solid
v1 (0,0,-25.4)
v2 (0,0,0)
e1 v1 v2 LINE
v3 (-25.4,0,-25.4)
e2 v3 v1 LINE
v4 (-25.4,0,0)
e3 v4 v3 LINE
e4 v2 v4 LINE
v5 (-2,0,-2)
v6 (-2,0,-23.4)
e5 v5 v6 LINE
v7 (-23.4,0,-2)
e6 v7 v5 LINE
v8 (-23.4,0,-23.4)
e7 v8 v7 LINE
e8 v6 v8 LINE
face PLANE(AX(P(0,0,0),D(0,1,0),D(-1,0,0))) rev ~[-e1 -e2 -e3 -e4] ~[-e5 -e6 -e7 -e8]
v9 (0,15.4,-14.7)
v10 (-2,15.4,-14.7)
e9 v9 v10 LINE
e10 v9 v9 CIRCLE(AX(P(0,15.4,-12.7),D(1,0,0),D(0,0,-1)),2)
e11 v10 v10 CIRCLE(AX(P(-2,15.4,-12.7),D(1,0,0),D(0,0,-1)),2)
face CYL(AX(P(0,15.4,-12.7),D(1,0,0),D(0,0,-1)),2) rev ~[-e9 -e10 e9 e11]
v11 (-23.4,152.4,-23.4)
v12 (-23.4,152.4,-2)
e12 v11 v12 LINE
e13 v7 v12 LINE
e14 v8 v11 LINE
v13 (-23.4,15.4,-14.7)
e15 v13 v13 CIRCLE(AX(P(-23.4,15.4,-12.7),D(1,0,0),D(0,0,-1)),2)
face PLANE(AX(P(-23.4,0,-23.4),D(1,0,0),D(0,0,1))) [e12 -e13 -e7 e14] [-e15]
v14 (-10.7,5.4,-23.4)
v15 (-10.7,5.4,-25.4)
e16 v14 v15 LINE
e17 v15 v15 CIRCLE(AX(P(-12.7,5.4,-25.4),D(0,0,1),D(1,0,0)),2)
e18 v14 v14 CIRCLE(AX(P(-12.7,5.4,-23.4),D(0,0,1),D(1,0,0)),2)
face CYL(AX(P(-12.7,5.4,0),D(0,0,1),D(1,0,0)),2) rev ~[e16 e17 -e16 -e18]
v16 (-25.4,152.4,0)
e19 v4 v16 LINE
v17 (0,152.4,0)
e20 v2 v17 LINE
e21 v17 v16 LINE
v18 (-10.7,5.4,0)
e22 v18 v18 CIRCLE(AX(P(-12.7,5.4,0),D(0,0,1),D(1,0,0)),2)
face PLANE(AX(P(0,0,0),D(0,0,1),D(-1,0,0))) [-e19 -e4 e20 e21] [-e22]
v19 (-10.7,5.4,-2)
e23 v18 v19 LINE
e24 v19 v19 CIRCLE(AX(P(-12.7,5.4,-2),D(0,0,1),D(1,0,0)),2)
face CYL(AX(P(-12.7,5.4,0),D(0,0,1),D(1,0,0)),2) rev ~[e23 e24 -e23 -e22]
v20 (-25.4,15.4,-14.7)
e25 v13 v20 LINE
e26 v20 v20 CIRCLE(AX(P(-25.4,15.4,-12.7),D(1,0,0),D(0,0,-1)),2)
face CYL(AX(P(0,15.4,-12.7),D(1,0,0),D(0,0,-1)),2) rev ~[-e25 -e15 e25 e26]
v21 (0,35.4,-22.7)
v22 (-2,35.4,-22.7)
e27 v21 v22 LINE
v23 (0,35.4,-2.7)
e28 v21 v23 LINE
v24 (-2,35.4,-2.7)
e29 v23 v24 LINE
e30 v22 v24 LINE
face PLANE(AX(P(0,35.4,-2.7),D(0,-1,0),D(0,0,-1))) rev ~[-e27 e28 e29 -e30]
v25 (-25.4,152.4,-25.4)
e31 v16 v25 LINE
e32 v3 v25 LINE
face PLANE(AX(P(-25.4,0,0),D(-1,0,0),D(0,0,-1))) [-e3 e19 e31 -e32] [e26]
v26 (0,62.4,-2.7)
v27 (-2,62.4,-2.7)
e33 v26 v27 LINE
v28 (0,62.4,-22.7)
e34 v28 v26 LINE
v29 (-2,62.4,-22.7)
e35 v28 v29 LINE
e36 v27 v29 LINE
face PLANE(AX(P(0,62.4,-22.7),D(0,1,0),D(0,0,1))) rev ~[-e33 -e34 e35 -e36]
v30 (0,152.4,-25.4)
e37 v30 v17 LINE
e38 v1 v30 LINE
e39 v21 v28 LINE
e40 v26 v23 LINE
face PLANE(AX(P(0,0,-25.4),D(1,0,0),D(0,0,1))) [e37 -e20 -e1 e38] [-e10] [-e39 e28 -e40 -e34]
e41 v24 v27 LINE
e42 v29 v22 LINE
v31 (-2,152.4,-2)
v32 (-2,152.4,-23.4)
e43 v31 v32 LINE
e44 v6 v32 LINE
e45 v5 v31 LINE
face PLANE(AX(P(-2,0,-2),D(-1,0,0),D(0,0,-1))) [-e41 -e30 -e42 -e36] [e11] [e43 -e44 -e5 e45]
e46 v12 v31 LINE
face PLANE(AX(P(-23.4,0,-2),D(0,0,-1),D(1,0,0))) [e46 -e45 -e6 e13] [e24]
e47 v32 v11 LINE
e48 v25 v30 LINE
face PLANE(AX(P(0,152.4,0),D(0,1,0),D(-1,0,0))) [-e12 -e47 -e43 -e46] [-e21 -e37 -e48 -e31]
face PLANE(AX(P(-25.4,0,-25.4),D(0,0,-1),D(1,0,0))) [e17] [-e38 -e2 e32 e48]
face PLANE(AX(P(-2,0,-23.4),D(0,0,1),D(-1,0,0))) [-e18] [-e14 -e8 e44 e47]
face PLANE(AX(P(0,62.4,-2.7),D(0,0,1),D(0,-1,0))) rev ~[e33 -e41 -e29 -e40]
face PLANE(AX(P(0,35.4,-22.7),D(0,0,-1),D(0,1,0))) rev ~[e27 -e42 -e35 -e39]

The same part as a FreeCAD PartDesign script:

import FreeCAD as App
import Part
import Sketcher

doc = App.newDocument("Part")
body = doc.addObject("PartDesign::Body", "Body")

# Sketch on XZ plane
sketch1 = doc.addObject("Sketcher::SketchObject", "Sketch")
body.addObject(sketch1)
sketch1.AttachmentSupport = (doc.XZ_Plane, [""])
sketch1.MapMode = "FlatFace"
sketch1.addGeometry([
    Part.LineSegment(App.Vector(-25, 0, 0), App.Vector(0, 0, 0)),  # 0
    Part.LineSegment(App.Vector(0, 0, 0), App.Vector(0, -25, 0)),  # 1
    Part.LineSegment(App.Vector(0, -25, 0), App.Vector(-25, -25, 0)),  # 2
    Part.LineSegment(App.Vector(-25, -25, 0), App.Vector(-25, 0, 0)),  # 3
    Part.LineSegment(App.Vector(-23, -2, 0), App.Vector(-23, -23, 0)),  # 4
    Part.LineSegment(App.Vector(-23, -23, 0), App.Vector(-2, -23, 0)),  # 5
    Part.LineSegment(App.Vector(-2, -23, 0), App.Vector(-2, -2, 0)),  # 6
    Part.LineSegment(App.Vector(-2, -2, 0), App.Vector(-23, -2, 0)),  # 7
], False)
sketch1.addConstraint([
    Sketcher.Constraint("Coincident", 0, 2, 1, 1),
    Sketcher.Constraint("Coincident", 1, 2, 2, 1),
    Sketcher.Constraint("Coincident", 2, 2, 3, 1),
    Sketcher.Constraint("Coincident", 3, 2, 0, 1),
    Sketcher.Constraint("Coincident", 4, 2, 5, 1),
    Sketcher.Constraint("Coincident", 5, 2, 6, 1),
    Sketcher.Constraint("Coincident", 6, 2, 7, 1),
    Sketcher.Constraint("Coincident", 7, 2, 4, 1),
    Sketcher.Constraint("Horizontal", 0),
    Sketcher.Constraint("Vertical", 1),
    Sketcher.Constraint("Horizontal", 2),
    Sketcher.Constraint("Vertical", 3),
    Sketcher.Constraint("Vertical", 4),
    Sketcher.Constraint("Horizontal", 5),
    Sketcher.Constraint("Vertical", 6),
    Sketcher.Constraint("Horizontal", 7),
    Sketcher.Constraint("Coincident", 0, 2, -1, 1),
    Sketcher.Constraint("Equal", 2, 1),
    Sketcher.Constraint("Equal", 7, 4),
    Sketcher.Constraint("DistanceX", 0, 1, 0, 2, 25.4),
    Sketcher.Constraint("DistanceX", 5, 2, -1, 1, 2.0),
    Sketcher.Constraint("DistanceY", 6, 2, -1, 1, 2.0),
    Sketcher.Constraint("DistanceX", 2, 2, 4, 2, 2.0),
])
pad1 = doc.addObject("PartDesign::Pad", "Pad")
body.addObject(pad1)
pad1.Profile = sketch1
pad1.Length = 152.4
pad1.Reversed = True

# Sketch on XY plane
sketch2 = doc.addObject("Sketcher::SketchObject", "Sketch001")
body.addObject(sketch2)
sketch2.AttachmentSupport = (doc.XY_Plane, [""])
sketch2.MapMode = "FlatFace"
sketch2.addGeometry(Part.Circle(App.Vector(-12.7, 5.4, 0), App.Vector(0, 0, 1), 2), False)
sketch2.addConstraint([
    Sketcher.Constraint("Diameter", 0, 4.0),
    Sketcher.Constraint("DistanceX", 0, 3, -1, 1, 12.7),
    Sketcher.Constraint("DistanceY", -1, 1, 0, 3, 5.4),
])
pocket1 = doc.addObject("PartDesign::Pocket", "Pocket")
body.addObject(pocket1)
pocket1.Profile = sketch2
pocket1.Type = "ThroughAll"

# Sketch on YZ plane
sketch3 = doc.addObject("Sketcher::SketchObject", "Sketch002")
body.addObject(sketch3)
sketch3.AttachmentSupport = (doc.YZ_Plane, [""])
sketch3.MapMode = "FlatFace"
sketch3.addGeometry(Part.Circle(App.Vector(15.4, -12.7, 0), App.Vector(0, 0, 1), 2), False)
sketch3.addConstraint([
    Sketcher.Constraint("Diameter", 0, 4.0),
    Sketcher.Constraint("DistanceX", -1, 1, 0, 3, 15.4),
    Sketcher.Constraint("DistanceY", 0, 3, -1, 1, 12.7),
])
pocket2 = doc.addObject("PartDesign::Pocket", "Pocket001")
body.addObject(pocket2)
pocket2.Profile = sketch3
pocket2.Type = "ThroughAll"

# Sketch on YZ plane
sketch4 = doc.addObject("Sketcher::SketchObject", "Sketch003")
body.addObject(sketch4)
sketch4.AttachmentSupport = (doc.YZ_Plane, [""])
sketch4.MapMode = "FlatFace"
sketch4.addGeometry([
    Part.LineSegment(App.Vector(35, -3, 0), App.Vector(35, -23, 0)),
    Part.LineSegment(App.Vector(35, -23, 0), App.Vector(62, -23, 0)),
    Part.LineSegment(App.Vector(62, -23, 0), App.Vector(62, -3, 0)),
    Part.LineSegment(App.Vector(62, -3, 0), App.Vector(35, -3, 0)),
], False)
sketch4.addConstraint([
    Sketcher.Constraint("Coincident", 0, 2, 1, 1),
    Sketcher.Constraint("Coincident", 1, 2, 2, 1),
    Sketcher.Constraint("Coincident", 2, 2, 3, 1),
    Sketcher.Constraint("Coincident", 3, 2, 0, 1),
    Sketcher.Constraint("Vertical", 0),
    Sketcher.Constraint("Horizontal", 1),
    Sketcher.Constraint("Vertical", 2),
    Sketcher.Constraint("Horizontal", 3),
    Sketcher.Constraint("DistanceY", 0, 2, 0, 1, 20.0),
    Sketcher.Constraint("DistanceX", 1, 1, 1, 2, 27.0),
    Sketcher.Constraint("DistanceX", -1, 1, 0, 2, 35.4),
    Sketcher.Constraint("DistanceY", 0, 2, -1, 1, 22.7),
])
pocket3 = doc.addObject("PartDesign::Pocket", "Pocket002")
body.addObject(pocket3)
pocket3.Profile = sketch4
pocket3.Length = 10

doc.recompute()
